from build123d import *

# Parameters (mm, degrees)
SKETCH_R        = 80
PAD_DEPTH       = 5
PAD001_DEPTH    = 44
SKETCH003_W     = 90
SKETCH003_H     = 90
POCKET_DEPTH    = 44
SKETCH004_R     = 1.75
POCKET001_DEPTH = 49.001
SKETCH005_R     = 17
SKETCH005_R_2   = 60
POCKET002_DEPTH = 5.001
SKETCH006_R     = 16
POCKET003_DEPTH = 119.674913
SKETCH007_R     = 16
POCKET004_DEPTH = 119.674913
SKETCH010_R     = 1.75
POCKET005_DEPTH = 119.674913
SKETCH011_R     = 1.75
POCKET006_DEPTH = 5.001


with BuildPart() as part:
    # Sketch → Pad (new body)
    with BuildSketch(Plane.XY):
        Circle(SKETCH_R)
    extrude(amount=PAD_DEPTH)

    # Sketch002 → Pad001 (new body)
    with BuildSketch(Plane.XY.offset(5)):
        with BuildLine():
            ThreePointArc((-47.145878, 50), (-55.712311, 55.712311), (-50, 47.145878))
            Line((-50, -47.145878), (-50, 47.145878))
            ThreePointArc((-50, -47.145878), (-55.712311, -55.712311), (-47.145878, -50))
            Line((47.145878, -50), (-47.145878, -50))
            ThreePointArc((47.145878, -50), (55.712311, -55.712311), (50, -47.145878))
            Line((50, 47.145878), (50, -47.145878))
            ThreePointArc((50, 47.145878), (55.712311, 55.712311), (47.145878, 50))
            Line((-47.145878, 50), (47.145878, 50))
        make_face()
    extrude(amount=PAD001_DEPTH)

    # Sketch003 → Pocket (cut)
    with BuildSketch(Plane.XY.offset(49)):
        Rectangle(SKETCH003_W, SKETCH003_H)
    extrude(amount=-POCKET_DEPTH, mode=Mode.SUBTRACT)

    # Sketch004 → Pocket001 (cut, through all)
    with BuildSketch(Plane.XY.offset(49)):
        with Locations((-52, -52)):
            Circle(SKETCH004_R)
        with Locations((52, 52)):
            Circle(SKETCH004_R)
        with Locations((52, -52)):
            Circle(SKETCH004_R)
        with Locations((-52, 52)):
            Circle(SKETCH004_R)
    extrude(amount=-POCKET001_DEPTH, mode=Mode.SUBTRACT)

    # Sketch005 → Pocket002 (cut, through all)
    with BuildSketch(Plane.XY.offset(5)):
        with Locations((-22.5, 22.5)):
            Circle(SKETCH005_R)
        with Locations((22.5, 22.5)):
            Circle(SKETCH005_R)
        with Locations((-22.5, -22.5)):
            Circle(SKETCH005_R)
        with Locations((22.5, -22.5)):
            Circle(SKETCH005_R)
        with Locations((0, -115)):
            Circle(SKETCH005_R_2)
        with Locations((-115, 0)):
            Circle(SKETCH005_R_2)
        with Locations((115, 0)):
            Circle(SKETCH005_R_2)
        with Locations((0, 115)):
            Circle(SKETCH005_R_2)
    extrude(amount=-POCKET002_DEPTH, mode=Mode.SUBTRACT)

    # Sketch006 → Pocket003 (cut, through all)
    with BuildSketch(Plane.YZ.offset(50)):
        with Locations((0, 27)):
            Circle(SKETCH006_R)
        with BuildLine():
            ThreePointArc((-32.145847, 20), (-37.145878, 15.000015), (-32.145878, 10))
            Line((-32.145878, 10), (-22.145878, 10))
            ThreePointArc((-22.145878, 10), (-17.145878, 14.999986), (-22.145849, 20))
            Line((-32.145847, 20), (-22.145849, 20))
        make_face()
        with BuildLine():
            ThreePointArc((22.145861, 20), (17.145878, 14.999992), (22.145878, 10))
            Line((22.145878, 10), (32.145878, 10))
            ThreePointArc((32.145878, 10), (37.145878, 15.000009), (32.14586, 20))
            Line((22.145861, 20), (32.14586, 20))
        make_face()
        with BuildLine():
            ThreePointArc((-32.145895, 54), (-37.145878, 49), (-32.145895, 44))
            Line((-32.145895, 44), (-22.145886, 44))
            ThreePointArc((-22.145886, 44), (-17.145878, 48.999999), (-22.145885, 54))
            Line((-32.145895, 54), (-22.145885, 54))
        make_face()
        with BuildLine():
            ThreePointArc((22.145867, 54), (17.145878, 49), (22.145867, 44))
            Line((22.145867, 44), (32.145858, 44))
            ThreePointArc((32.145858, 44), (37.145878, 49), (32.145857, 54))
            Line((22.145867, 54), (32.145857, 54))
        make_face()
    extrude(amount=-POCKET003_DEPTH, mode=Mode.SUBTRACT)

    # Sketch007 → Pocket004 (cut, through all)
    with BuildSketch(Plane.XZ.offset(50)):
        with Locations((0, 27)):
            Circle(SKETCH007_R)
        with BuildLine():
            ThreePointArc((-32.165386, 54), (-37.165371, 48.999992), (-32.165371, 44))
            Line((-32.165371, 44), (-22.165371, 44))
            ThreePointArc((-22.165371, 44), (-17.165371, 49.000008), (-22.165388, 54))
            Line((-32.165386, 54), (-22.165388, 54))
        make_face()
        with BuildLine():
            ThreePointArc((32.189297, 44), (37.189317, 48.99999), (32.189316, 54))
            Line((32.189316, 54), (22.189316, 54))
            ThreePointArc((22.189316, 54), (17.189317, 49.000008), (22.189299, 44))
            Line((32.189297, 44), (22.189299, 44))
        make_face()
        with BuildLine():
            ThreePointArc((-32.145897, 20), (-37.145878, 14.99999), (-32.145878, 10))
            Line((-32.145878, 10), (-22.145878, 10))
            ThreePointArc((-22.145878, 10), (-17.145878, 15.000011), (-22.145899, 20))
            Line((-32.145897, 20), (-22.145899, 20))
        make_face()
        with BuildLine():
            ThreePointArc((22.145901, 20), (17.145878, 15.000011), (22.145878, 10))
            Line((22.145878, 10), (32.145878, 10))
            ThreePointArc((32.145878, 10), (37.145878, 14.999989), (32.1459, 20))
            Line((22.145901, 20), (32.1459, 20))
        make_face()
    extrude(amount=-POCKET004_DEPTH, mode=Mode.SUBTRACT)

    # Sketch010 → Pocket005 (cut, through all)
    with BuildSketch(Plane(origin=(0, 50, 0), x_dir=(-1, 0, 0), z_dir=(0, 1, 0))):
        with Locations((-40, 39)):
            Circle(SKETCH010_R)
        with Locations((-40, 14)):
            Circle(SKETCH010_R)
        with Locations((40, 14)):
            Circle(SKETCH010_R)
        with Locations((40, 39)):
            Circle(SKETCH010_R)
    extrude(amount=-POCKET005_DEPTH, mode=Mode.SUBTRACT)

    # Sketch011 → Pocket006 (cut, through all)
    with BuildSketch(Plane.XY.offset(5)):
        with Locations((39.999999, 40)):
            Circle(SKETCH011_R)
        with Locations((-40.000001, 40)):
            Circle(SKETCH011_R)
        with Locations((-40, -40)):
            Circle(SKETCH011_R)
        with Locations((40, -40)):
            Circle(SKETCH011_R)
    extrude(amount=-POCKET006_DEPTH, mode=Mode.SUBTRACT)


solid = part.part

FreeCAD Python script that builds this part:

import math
import FreeCAD as App
import Part
import Sketcher
from FreeCAD import Vector
Q = App.Units.Quantity

doc = App.newDocument("Part")
body = doc.addObject("PartDesign::Body", "Body")

# Sketch on XY plane
sketch1 = body.newObject("Sketcher::SketchObject", "Sketch")
sketch1.AttachmentSupport = (doc.getObject("XY_Plane"), [""])
sketch1.MapMode = "FlatFace"
sketch1.addGeometry(Part.Circle(Vector(0, 0, 0), Vector(0, 0, 1), 80), False)
sketch1.addConstraint([
    Sketcher.Constraint("Coincident", 0, 3, -1, 1),
    Sketcher.Constraint("Diameter", 0, Q("160 mm")),
])
pad1 = body.newObject("PartDesign::Pad", "Pad")
pad1.Profile = sketch1
pad1.Length = 5

# Sketch on XY plane
sketch2 = body.newObject("Sketcher::SketchObject", "Sketch001")
sketch2.AttachmentSupport = (doc.getObject("XY_Plane"), [""])
sketch2.MapMode = "FlatFace"
sketch2.AttachmentOffset = App.Placement(Vector(0, 0, 5), App.Rotation())
sketch2.addGeometry([
    Part.ArcOfCircle(Part.Circle(Vector(-52, 52, 0), Vector(0, 0, 1), 5.25), math.radians(-22.392689), math.radians(292.392689)),  # 0
    Part.LineSegment(Vector(-50, 47.145878, 0), Vector(-50, -47.145878, 0)),  # 1
    Part.ArcOfCircle(Part.Circle(Vector(-52, -52, 0), Vector(0, 0, 1), 5.25), math.radians(67.607311), math.radians(382.392689)),  # 2
    Part.LineSegment(Vector(-47.145878, -50, 0), Vector(47.145878, -50, 0)),  # 3
    Part.ArcOfCircle(Part.Circle(Vector(52, -52, 0), Vector(0, 0, 1), 5.25), math.radians(157.607311), math.radians(472.392689)),  # 4
    Part.LineSegment(Vector(50, -47.145878, 0), Vector(50, 47.145878, 0)),  # 5
    Part.ArcOfCircle(Part.Circle(Vector(52, 52, 0), Vector(0, 0, 1), 5.25), math.radians(-112.392689), math.radians(202.392689)),  # 6
    Part.LineSegment(Vector(47.145878, 50, 0), Vector(-47.145878, 50, 0)),  # 7
], False)
sketch2.addConstraint([
    Sketcher.Constraint("Coincident", 0, 2, 1, 1),
    Sketcher.Constraint("Coincident", 1, 2, 2, 1),
    Sketcher.Constraint("Coincident", 2, 2, 3, 1),
    Sketcher.Constraint("Coincident", 3, 2, 4, 1),
    Sketcher.Constraint("Coincident", 4, 2, 5, 1),
    Sketcher.Constraint("Coincident", 5, 2, 6, 1),
    Sketcher.Constraint("Coincident", 6, 2, 7, 1),
    Sketcher.Constraint("Coincident", 7, 2, 0, 1),
    Sketcher.Constraint("Vertical", 1),
    Sketcher.Constraint("Horizontal", 3),
    Sketcher.Constraint("Vertical", 5),
    Sketcher.Constraint("Horizontal", 7),
    Sketcher.Constraint("Equal", 0, 2),
    Sketcher.Constraint("Equal", 2, 4),
    Sketcher.Constraint("Equal", 4, 6),
    Sketcher.Constraint("Symmetric", 0, 3, 4, 3, -1, 1),
    Sketcher.Constraint("Symmetric", 2, 3, 6, 3, -1, 1),
    Sketcher.Constraint("Symmetric", 2, 3, 4, 3, -2),
    Sketcher.Constraint("Horizontal", 1, 2, 4, 2),
    Sketcher.Constraint("Vertical", 3, 2, 6, 2),
    Sketcher.Constraint("Equal", 7, 1),
    Sketcher.Constraint("Radius", 0, Q("5.25 mm")),
    Sketcher.Constraint("DistanceX", 0, 3, -1, 1, Q("52 mm")),
    Sketcher.Constraint("DistanceY", -1, 1, 0, 3, Q("52 mm")),
    Sketcher.Constraint("DistanceX", 0, 2, -1, 1, Q("50 mm")),
])
pad2 = body.newObject("PartDesign::Pad", "Pad001")
pad2.Profile = sketch2
pad2.Length = 44

# Sketch on XY plane
sketch3 = body.newObject("Sketcher::SketchObject", "Sketch002")
sketch3.AttachmentSupport = (doc.getObject("XY_Plane"), [""])
sketch3.MapMode = "FlatFace"
sketch3.AttachmentOffset = App.Placement(Vector(0, 0, 49), App.Rotation())
sketch3.addGeometry([
    Part.LineSegment(Vector(-45, 45, 0), Vector(-45, -45, 0)),
    Part.LineSegment(Vector(-45, -45, 0), Vector(45, -45, 0)),
    Part.LineSegment(Vector(45, -45, 0), Vector(45, 45, 0)),
    Part.LineSegment(Vector(45, 45, 0), Vector(-45, 45, 0)),
], False)
sketch3.addConstraint([
    Sketcher.Constraint("Coincident", 0, 2, 1, 1),
    Sketcher.Constraint("Coincident", 1, 2, 2, 1),
    Sketcher.Constraint("Coincident", 2, 2, 3, 1),
    Sketcher.Constraint("Coincident", 3, 2, 0, 1),
    Sketcher.Constraint("Vertical", 0),
    Sketcher.Constraint("Horizontal", 1),
    Sketcher.Constraint("Vertical", 2),
    Sketcher.Constraint("Horizontal", 3),
    Sketcher.Constraint("Symmetric", 0, 2, 2, 2, -1, 1),
    Sketcher.Constraint("Equal", 3, 0),
    Sketcher.Constraint("DistanceX", 1, 1, 1, 2, Q("90 mm")),
])
pocket1 = body.newObject("PartDesign::Pocket", "Pocket")
pocket1.Profile = sketch3
pocket1.Length = 44

# Sketch on XY plane
sketch4 = body.newObject("Sketcher::SketchObject", "Sketch003")
sketch4.AttachmentSupport = (doc.getObject("XY_Plane"), [""])
sketch4.MapMode = "FlatFace"
sketch4.AttachmentOffset = App.Placement(Vector(0, 0, 49), App.Rotation())
sketch4.addGeometry([
    Part.Circle(Vector(-52, -52, 0), Vector(0, 0, 1), 1.75),
    Part.Circle(Vector(52, 52, 0), Vector(0, 0, 1), 1.75),
    Part.Circle(Vector(52, -52, 0), Vector(0, 0, 1), 1.75),
    Part.Circle(Vector(-52, 52, 0), Vector(0, 0, 1), 1.75),
], False)
sketch4.addConstraint([
    Sketcher.Constraint("Equal", 0, 1),
    Sketcher.Constraint("Equal", 1, 2),
    Sketcher.Constraint("Equal", 2, 3),
    Sketcher.Constraint("Symmetric", 0, 3, 1, 3, -1, 1),
    Sketcher.Constraint("Symmetric", 2, 3, 3, 3, -1, 1),
    Sketcher.Constraint("Symmetric", 0, 3, 2, 3, -2),
    Sketcher.Constraint("Diameter", 0, Q("3.5 mm")),
    Sketcher.Constraint("DistanceX", 0, 3, -1, 1, Q("52 mm")),
    Sketcher.Constraint("DistanceY", 0, 3, -1, 1, Q("52 mm")),
])
pocket2 = body.newObject("PartDesign::Pocket", "Pocket001")
pocket2.Profile = sketch4
pocket2.Type = "ThroughAll"

# Sketch on XY plane
sketch5 = body.newObject("Sketcher::SketchObject", "Sketch004")
sketch5.AttachmentSupport = (doc.getObject("XY_Plane"), [""])
sketch5.MapMode = "FlatFace"
sketch5.AttachmentOffset = App.Placement(Vector(0, 0, 5), App.Rotation())
sketch5.addGeometry([
    Part.Circle(Vector(-22.5, 22.5, 0), Vector(0, 0, 1), 17),  # 0
    Part.Circle(Vector(22.5, 22.5, 0), Vector(0, 0, 1), 17),  # 1
    Part.Circle(Vector(-22.5, -22.5, 0), Vector(0, 0, 1), 17),  # 2
    Part.Circle(Vector(22.5, -22.5, 0), Vector(0, 0, 1), 17),  # 3
    Part.Circle(Vector(0, -115, 0), Vector(0, 0, 1), 60),  # 4
    Part.Circle(Vector(-115, 0, 0), Vector(0, 0, 1), 60),  # 5
    Part.Circle(Vector(115, 0, 0), Vector(0, 0, 1), 60),  # 6
    Part.Circle(Vector(0, 115, 0), Vector(0, 0, 1), 60),  # 7
], False)
sketch5.addConstraint([
    Sketcher.Constraint("Equal", 0, 1),
    Sketcher.Constraint("Equal", 1, 2),
    Sketcher.Constraint("Equal", 2, 3),
    Sketcher.Constraint("Equal", 4, 5),
    Sketcher.Constraint("Equal", 5, 6),
    Sketcher.Constraint("Equal", 6, 7),
    Sketcher.Constraint("Symmetric", 1, 3, 2, 3, -1, 1),
    Sketcher.Constraint("Symmetric", 0, 3, 3, 3, -1, 1),
    Sketcher.Constraint("Symmetric", 5, 3, 6, 3, -1, 1),
    Sketcher.Constraint("Symmetric", 4, 3, 7, 3, -1, 1),
    Sketcher.Constraint("Symmetric", 0, 3, 1, 3, -2),
    Sketcher.Constraint("PointOnObject", 4, 3, -2),
    Sketcher.Constraint("PointOnObject", 5, 3, -1),
    Sketcher.Constraint("Diameter", 0, Q("34 mm")),
    Sketcher.Constraint("Diameter", 4, Q("120 mm")),
    Sketcher.Constraint("DistanceY", 4, 3, -1, 1, Q("115 mm")),
    Sketcher.Constraint("DistanceX", 5, 3, -1, 1, Q("115 mm")),
    Sketcher.Constraint("DistanceX", 0, 3, 1, 3, Q("45 mm")),
    Sketcher.Constraint("DistanceY", 2, 3, 0, 3, Q("45 mm")),
])
pocket3 = body.newObject("PartDesign::Pocket", "Pocket002")
pocket3.Profile = sketch5
pocket3.Type = "ThroughAll"

# Sketch on YZ plane
sketch6 = body.newObject("Sketcher::SketchObject", "Sketch005")
sketch6.AttachmentSupport = (doc.getObject("YZ_Plane"), [""])
sketch6.MapMode = "FlatFace"
sketch6.AttachmentOffset = App.Placement(Vector(0, 0, 50), App.Rotation())
sketch6.addGeometry([
    Part.Circle(Vector(0, 27, 0), Vector(0, 0, 1), 16),  # 0
    Part.ArcOfCircle(Part.Circle(Vector(-32.145878, 15, 0), Vector(0, 0, 1), 5), math.radians(89.999645), math.radians(270)),  # 1
    Part.LineSegment(Vector(-32.145878, 10, 0), Vector(-22.145878, 10, 0)),  # 2
    Part.ArcOfCircle(Part.Circle(Vector(-22.145878, 15, 0), Vector(0, 0, 1), 5), math.radians(-90), math.radians(89.999668)),  # 3
    Part.LineSegment(Vector(-22.145849, 20, 0), Vector(-32.145847, 20, 0)),  # 4
    Part.ArcOfCircle(Part.Circle(Vector(22.145878, 15, 0), Vector(0, 0, 1), 5), math.radians(90.000195), math.radians(270)),  # 5
    Part.LineSegment(Vector(22.145878, 10, 0), Vector(32.145878, 10, 0)),  # 6
    Part.ArcOfCircle(Part.Circle(Vector(32.145878, 15, 0), Vector(0, 0, 1), 5), math.radians(-90), math.radians(90.000206)),  # 7
    Part.LineSegment(Vector(32.14586, 20, 0), Vector(22.145861, 20, 0)),  # 8
    Part.ArcOfCircle(Part.Circle(Vector(-32.145878, 49, 0), Vector(0, 0, 1), 5), math.radians(90.000195), math.radians(269.999805)),  # 9
    Part.LineSegment(Vector(-32.145895, 44, 0), Vector(-22.145886, 44, 0)),  # 10
    Part.ArcOfCircle(Part.Circle(Vector(-22.145878, 49, 0), Vector(0, 0, 1), 5), math.radians(-90.000092), math.radians(90.00008)),  # 11
    Part.LineSegment(Vector(-22.145885, 54, 0), Vector(-32.145895, 54, 0)),  # 12
    Part.ArcOfCircle(Part.Circle(Vector(22.145878, 49, 0), Vector(0, 0, 1), 5), math.radians(90.000126), math.radians(269.999874)),  # 13
    Part.LineSegment(Vector(22.145867, 44, 0), Vector(32.145858, 44, 0)),  # 14
    Part.ArcOfCircle(Part.Circle(Vector(32.145878, 49, 0), Vector(0, 0, 1), 5), math.radians(-90.000229), math.radians(90.000241)),  # 15
    Part.LineSegment(Vector(32.145857, 54, 0), Vector(22.145867, 54, 0)),  # 16
], False)
sketch6.addConstraint([
    Sketcher.Constraint("Tangent", 1, 2, 2, 1),
    Sketcher.Constraint("Tangent", 2, 2, 3, 1),
    Sketcher.Constraint("Coincident", 3, 2, 4, 1),
    Sketcher.Constraint("Coincident", 4, 2, 1, 1),
    Sketcher.Constraint("Tangent", 5, 2, 6, 1),
    Sketcher.Constraint("Tangent", 6, 2, 7, 1),
    Sketcher.Constraint("Coincident", 7, 2, 8, 1),
    Sketcher.Constraint("Coincident", 8, 2, 5, 1),
    Sketcher.Constraint("Coincident", 9, 2, 10, 1),
    Sketcher.Constraint("Tangent", 10, 2, 11, 1),
    Sketcher.Constraint("Tangent", 11, 2, 12, 1),
    Sketcher.Constraint("Coincident", 12, 2, 9, 1),
    Sketcher.Constraint("Coincident", 13, 2, 14, 1),
    Sketcher.Constraint("Coincident", 14, 2, 15, 1),
    Sketcher.Constraint("Coincident", 15, 2, 16, 1),
    Sketcher.Constraint("Coincident", 16, 2, 13, 1),
    Sketcher.Constraint("Horizontal", 2),
    Sketcher.Constraint("Horizontal", 4),
    Sketcher.Constraint("Horizontal", 6),
    Sketcher.Constraint("Horizontal", 8),
    Sketcher.Constraint("Horizontal", 10),
    Sketcher.Constraint("Horizontal", 12),
    Sketcher.Constraint("Horizontal", 14),
    Sketcher.Constraint("Horizontal", 16),
    Sketcher.Constraint("Equal", 3, 5),
    Sketcher.Constraint("Equal", 7, 9),
    Sketcher.Constraint("Equal", 11, 13),
    Sketcher.Constraint("Symmetric", 3, 3, 5, 3, -2),
    Sketcher.Constraint("Symmetric", 11, 3, 13, 3, -2),
    Sketcher.Constraint("PointOnObject", 0, 3, -2),
    Sketcher.Constraint("Vertical", 1, 3, 9, 3),
    Sketcher.Constraint("Vertical", 3, 3, 11, 3),
    Sketcher.Constraint("Vertical", 7, 3, 15, 3),
    Sketcher.Constraint("Vertical", 9, 2, 12, 2),
    Sketcher.Constraint("Vertical", 14, 2, 15, 2),
    Sketcher.Constraint("Vertical", 13, 2, 16, 2),
    Sketcher.Constraint("Equal", 2, 4),
    Sketcher.Constraint("Equal", 4, 6),
    Sketcher.Constraint("Equal", 6, 8),
    Sketcher.Constraint("Diameter", 0, Q("32 mm")),
    Sketcher.Constraint("Radius", 1, Q("5 mm")),
    Sketcher.Constraint("DistanceX", 2, 1, 2, 2, Q("10 mm")),
    Sketcher.Constraint("DistanceY", -1, 1, 0, 3, Q("27 mm")),
    Sketcher.Constraint("DistanceY", -1, 1, 1, 3, Q("15 mm")),
    Sketcher.Constraint("DistanceY", -1, 1, 9, 3, Q("49 mm")),
    Sketcher.Constraint("DistanceX", 10, 1, 10, 2, Q("10.000009 mm")),
    Sketcher.Constraint("DistanceX", 14, 1, 14, 2, Q("9.999991 mm")),
    Sketcher.Constraint("DistanceX", 1, 3, -1, 1, Q("32.145878 mm")),
    Sketcher.Constraint("DistanceX", 3, 2, -1, 1, Q("22.145849 mm")),
    Sketcher.Constraint("DistanceX", -1, 1, 7, 2, Q("32.14586 mm")),
    Sketcher.Constraint("DistanceX", 13, 2, 15, 3, Q("10.000011 mm")),
])
pocket4 = body.newObject("PartDesign::Pocket", "Pocket003")
pocket4.Profile = sketch6
pocket4.Type = "ThroughAll"

# Sketch on XZ plane
sketch7 = body.newObject("Sketcher::SketchObject", "Sketch006")
sketch7.AttachmentSupport = (doc.getObject("XZ_Plane"), [""])
sketch7.MapMode = "FlatFace"
sketch7.AttachmentOffset = App.Placement(Vector(0, 0, 50), App.Rotation())
sketch7.addGeometry([
    Part.Circle(Vector(0, 27, 0), Vector(0, 0, 1), 16),  # 0
    Part.ArcOfCircle(Part.Circle(Vector(-32.165371, 49, 0), Vector(0, 0, 1), 5), math.radians(90.000172), math.radians(270)),  # 1
    Part.LineSegment(Vector(-32.165371, 44, 0), Vector(-22.165371, 44, 0)),  # 2
    Part.ArcOfCircle(Part.Circle(Vector(-22.165371, 49, 0), Vector(0, 0, 1), 5), math.radians(-90), math.radians(90.000195)),  # 3
    Part.LineSegment(Vector(-22.165388, 54, 0), Vector(-32.165386, 54, 0)),  # 4
    Part.ArcOfCircle(Part.Circle(Vector(32.189317, 49, 0), Vector(0, 0, 1), 5), math.radians(-90.000229), math.radians(90.000011)),  # 5
    Part.LineSegment(Vector(32.189316, 54, 0), Vector(22.189316, 54, 0)),  # 6
    Part.ArcOfCircle(Part.Circle(Vector(22.189317, 49, 0), Vector(0, 0, 1), 5), math.radians(90.000011), math.radians(269.999794)),  # 7
    Part.LineSegment(Vector(22.189299, 44, 0), Vector(32.189297, 44, 0)),  # 8
    Part.ArcOfCircle(Part.Circle(Vector(-32.145878, 15, 0), Vector(0, 0, 1), 5), math.radians(90.000218), math.radians(270)),  # 9
    Part.LineSegment(Vector(-32.145878, 10, 0), Vector(-22.145878, 10, 0)),  # 10
    Part.ArcOfCircle(Part.Circle(Vector(-22.145878, 15, 0), Vector(0, 0, 1), 5), math.radians(-90), math.radians(90.000241)),  # 11
    Part.LineSegment(Vector(-22.145899, 20, 0), Vector(-32.145897, 20, 0)),  # 12
    Part.ArcOfCircle(Part.Circle(Vector(22.145878, 15, 0), Vector(0, 0, 1), 5), math.radians(89.999736), math.radians(270)),  # 13
    Part.LineSegment(Vector(22.145878, 10, 0), Vector(32.145878, 10, 0)),  # 14
    Part.ArcOfCircle(Part.Circle(Vector(32.145878, 15, 0), Vector(0, 0, 1), 5), math.radians(-90), math.radians(89.999748)),  # 15
    Part.LineSegment(Vector(32.1459, 20, 0), Vector(22.145901, 20, 0)),  # 16
], False)
sketch7.addConstraint([
    Sketcher.Constraint("Tangent", 1, 2, 2, 1),
    Sketcher.Constraint("Tangent", 2, 2, 3, 1),
    Sketcher.Constraint("Coincident", 3, 2, 4, 1),
    Sketcher.Constraint("Coincident", 4, 2, 1, 1),
    Sketcher.Constraint("Tangent", 5, 2, 6, 1),
    Sketcher.Constraint("Tangent", 6, 2, 7, 1),
    Sketcher.Constraint("Coincident", 7, 2, 8, 1),
    Sketcher.Constraint("Coincident", 8, 2, 5, 1),
    Sketcher.Constraint("Tangent", 9, 2, 10, 1),
    Sketcher.Constraint("Tangent", 10, 2, 11, 1),
    Sketcher.Constraint("Coincident", 11, 2, 12, 1),
    Sketcher.Constraint("Coincident", 12, 2, 9, 1),
    Sketcher.Constraint("Tangent", 13, 2, 14, 1),
    Sketcher.Constraint("Tangent", 14, 2, 15, 1),
    Sketcher.Constraint("Coincident", 15, 2, 16, 1),
    Sketcher.Constraint("Coincident", 16, 2, 13, 1),
    Sketcher.Constraint("Horizontal", 2),
    Sketcher.Constraint("Horizontal", 4),
    Sketcher.Constraint("Horizontal", 6),
    Sketcher.Constraint("Horizontal", 8),
    Sketcher.Constraint("Horizontal", 10),
    Sketcher.Constraint("Horizontal", 12),
    Sketcher.Constraint("Horizontal", 14),
    Sketcher.Constraint("Horizontal", 16),
    Sketcher.Constraint("Equal", 3, 5),
    Sketcher.Constraint("Equal", 7, 9),
    Sketcher.Constraint("Equal", 11, 13),
    Sketcher.Constraint("Symmetric", 11, 3, 13, 3, -2),
    Sketcher.Constraint("PointOnObject", 0, 3, -2),
    Sketcher.Constraint("Horizontal", 3, 3, 5, 3),
    Sketcher.Constraint("Equal", 4, 6),
    Sketcher.Constraint("Equal", 6, 8),
    Sketcher.Constraint("Equal", 8, 10),
    Sketcher.Constraint("Equal", 8, 12),
    Sketcher.Constraint("Equal", 10, 14),
    Sketcher.Constraint("Equal", 14, 16),
    Sketcher.Constraint("Diameter", 0, Q("32 mm")),
    Sketcher.Constraint("Radius", 1, Q("5 mm")),
    Sketcher.Constraint("DistanceX", 2, 1, 2, 2, Q("10 mm")),
    Sketcher.Constraint("DistanceX", 6, 2, 6, 1, Q("10 mm")),
    Sketcher.Constraint("DistanceY", -1, 1, 0, 3, Q("27 mm")),
    Sketcher.Constraint("DistanceY", -1, 1, 1, 3, Q("49 mm")),
    Sketcher.Constraint("DistanceY", -1, 1, 9, 3, Q("15 mm")),
    Sketcher.Constraint("DistanceX", -1, 1, 7, 2, Q("22.189299 mm")),
    Sketcher.Constraint("DistanceX", 11, 2, -1, 1, Q("22.145899 mm")),
    Sketcher.Constraint("DistanceX", -1, 1, 15, 2, Q("32.1459 mm")),
    Sketcher.Constraint("DistanceX", 1, 3, -1, 1, Q("32.165371 mm")),
    Sketcher.Constraint("DistanceX", 9, 3, -1, 1, Q("32.145878 mm")),
    Sketcher.Constraint("DistanceX", 3, 2, -1, 1, Q("22.165388 mm")),
    Sketcher.Constraint("DistanceX", 3, 3, 5, 3, Q("54.354688 mm")),
])
pocket5 = body.newObject("PartDesign::Pocket", "Pocket004")
pocket5.Profile = sketch7
pocket5.Type = "ThroughAll"

# Sketch on XZ plane
sketch8 = body.newObject("Sketcher::SketchObject", "Sketch007")
sketch8.AttachmentSupport = (doc.getObject("XZ_Plane"), [""])
sketch8.MapMode = "FlatFace"
sketch8.AttachmentOffset = App.Placement(Vector(0, 0, -50), App.Rotation())
sketch8.addGeometry([
    Part.Circle(Vector(40, 39, 0), Vector(0, 0, 1), 1.75),
    Part.Circle(Vector(40, 14, 0), Vector(0, 0, 1), 1.75),
    Part.Circle(Vector(-40, 14, 0), Vector(0, 0, 1), 1.75),
    Part.Circle(Vector(-40, 39, 0), Vector(0, 0, 1), 1.75),
], False)
sketch8.addConstraint([
    Sketcher.Constraint("Equal", 0, 1),
    Sketcher.Constraint("Equal", 1, 2),
    Sketcher.Constraint("Equal", 2, 3),
    Sketcher.Constraint("Symmetric", 1, 3, 2, 3, -2),
    Sketcher.Constraint("Symmetric", 0, 3, 3, 3, -2),
    Sketcher.Constraint("Vertical", 0, 3, 1, 3),
    Sketcher.Constraint("Diameter", 0, Q("3.5 mm")),
    Sketcher.Constraint("DistanceX", -1, 1, 0, 3, Q("40 mm")),
    Sketcher.Constraint("DistanceY", -1, 1, 0, 3, Q("39 mm")),
    Sketcher.Constraint("DistanceY", -1, 1, 1, 3, Q("14 mm")),
])
pocket6 = body.newObject("PartDesign::Pocket", "Pocket005")
pocket6.Profile = sketch8
pocket6.Type = "ThroughAll"
pocket6.Reversed = True

# Sketch on XY plane
sketch9 = body.newObject("Sketcher::SketchObject", "Sketch008")
sketch9.AttachmentSupport = (doc.getObject("XY_Plane"), [""])
sketch9.MapMode = "FlatFace"
sketch9.AttachmentOffset = App.Placement(Vector(0, 0, 5), App.Rotation())
sketch9.addGeometry([
    Part.Circle(Vector(39.999999, 40, 0), Vector(0, 0, 1), 1.75),
    Part.Circle(Vector(-40.000001, 40, 0), Vector(0, 0, 1), 1.75),
    Part.Circle(Vector(-40, -40, 0), Vector(0, 0, 1), 1.75),
    Part.Circle(Vector(40, -40, 0), Vector(0, 0, 1), 1.75),
], False)
sketch9.addConstraint([
    Sketcher.Constraint("Equal", 0, 1),
    Sketcher.Constraint("Equal", 1, 2),
    Sketcher.Constraint("Equal", 2, 3),
    Sketcher.Constraint("Symmetric", 0, 3, 2, 3, -1, 1),
    Sketcher.Constraint("Symmetric", 1, 3, 3, 3, -1, 1),
    Sketcher.Constraint("Symmetric", 0, 3, 1, 3, -2),
    Sketcher.Constraint("Diameter", 0, Q("3.5 mm")),
    Sketcher.Constraint("DistanceX", -1, 1, 0, 3, Q("39.999999 mm")),
    Sketcher.Constraint("DistanceY", -1, 1, 0, 3, Q("40 mm")),
])
pocket7 = body.newObject("PartDesign::Pocket", "Pocket006")
pocket7.Profile = sketch9
pocket7.Type = "ThroughAll"

doc.recompute()
